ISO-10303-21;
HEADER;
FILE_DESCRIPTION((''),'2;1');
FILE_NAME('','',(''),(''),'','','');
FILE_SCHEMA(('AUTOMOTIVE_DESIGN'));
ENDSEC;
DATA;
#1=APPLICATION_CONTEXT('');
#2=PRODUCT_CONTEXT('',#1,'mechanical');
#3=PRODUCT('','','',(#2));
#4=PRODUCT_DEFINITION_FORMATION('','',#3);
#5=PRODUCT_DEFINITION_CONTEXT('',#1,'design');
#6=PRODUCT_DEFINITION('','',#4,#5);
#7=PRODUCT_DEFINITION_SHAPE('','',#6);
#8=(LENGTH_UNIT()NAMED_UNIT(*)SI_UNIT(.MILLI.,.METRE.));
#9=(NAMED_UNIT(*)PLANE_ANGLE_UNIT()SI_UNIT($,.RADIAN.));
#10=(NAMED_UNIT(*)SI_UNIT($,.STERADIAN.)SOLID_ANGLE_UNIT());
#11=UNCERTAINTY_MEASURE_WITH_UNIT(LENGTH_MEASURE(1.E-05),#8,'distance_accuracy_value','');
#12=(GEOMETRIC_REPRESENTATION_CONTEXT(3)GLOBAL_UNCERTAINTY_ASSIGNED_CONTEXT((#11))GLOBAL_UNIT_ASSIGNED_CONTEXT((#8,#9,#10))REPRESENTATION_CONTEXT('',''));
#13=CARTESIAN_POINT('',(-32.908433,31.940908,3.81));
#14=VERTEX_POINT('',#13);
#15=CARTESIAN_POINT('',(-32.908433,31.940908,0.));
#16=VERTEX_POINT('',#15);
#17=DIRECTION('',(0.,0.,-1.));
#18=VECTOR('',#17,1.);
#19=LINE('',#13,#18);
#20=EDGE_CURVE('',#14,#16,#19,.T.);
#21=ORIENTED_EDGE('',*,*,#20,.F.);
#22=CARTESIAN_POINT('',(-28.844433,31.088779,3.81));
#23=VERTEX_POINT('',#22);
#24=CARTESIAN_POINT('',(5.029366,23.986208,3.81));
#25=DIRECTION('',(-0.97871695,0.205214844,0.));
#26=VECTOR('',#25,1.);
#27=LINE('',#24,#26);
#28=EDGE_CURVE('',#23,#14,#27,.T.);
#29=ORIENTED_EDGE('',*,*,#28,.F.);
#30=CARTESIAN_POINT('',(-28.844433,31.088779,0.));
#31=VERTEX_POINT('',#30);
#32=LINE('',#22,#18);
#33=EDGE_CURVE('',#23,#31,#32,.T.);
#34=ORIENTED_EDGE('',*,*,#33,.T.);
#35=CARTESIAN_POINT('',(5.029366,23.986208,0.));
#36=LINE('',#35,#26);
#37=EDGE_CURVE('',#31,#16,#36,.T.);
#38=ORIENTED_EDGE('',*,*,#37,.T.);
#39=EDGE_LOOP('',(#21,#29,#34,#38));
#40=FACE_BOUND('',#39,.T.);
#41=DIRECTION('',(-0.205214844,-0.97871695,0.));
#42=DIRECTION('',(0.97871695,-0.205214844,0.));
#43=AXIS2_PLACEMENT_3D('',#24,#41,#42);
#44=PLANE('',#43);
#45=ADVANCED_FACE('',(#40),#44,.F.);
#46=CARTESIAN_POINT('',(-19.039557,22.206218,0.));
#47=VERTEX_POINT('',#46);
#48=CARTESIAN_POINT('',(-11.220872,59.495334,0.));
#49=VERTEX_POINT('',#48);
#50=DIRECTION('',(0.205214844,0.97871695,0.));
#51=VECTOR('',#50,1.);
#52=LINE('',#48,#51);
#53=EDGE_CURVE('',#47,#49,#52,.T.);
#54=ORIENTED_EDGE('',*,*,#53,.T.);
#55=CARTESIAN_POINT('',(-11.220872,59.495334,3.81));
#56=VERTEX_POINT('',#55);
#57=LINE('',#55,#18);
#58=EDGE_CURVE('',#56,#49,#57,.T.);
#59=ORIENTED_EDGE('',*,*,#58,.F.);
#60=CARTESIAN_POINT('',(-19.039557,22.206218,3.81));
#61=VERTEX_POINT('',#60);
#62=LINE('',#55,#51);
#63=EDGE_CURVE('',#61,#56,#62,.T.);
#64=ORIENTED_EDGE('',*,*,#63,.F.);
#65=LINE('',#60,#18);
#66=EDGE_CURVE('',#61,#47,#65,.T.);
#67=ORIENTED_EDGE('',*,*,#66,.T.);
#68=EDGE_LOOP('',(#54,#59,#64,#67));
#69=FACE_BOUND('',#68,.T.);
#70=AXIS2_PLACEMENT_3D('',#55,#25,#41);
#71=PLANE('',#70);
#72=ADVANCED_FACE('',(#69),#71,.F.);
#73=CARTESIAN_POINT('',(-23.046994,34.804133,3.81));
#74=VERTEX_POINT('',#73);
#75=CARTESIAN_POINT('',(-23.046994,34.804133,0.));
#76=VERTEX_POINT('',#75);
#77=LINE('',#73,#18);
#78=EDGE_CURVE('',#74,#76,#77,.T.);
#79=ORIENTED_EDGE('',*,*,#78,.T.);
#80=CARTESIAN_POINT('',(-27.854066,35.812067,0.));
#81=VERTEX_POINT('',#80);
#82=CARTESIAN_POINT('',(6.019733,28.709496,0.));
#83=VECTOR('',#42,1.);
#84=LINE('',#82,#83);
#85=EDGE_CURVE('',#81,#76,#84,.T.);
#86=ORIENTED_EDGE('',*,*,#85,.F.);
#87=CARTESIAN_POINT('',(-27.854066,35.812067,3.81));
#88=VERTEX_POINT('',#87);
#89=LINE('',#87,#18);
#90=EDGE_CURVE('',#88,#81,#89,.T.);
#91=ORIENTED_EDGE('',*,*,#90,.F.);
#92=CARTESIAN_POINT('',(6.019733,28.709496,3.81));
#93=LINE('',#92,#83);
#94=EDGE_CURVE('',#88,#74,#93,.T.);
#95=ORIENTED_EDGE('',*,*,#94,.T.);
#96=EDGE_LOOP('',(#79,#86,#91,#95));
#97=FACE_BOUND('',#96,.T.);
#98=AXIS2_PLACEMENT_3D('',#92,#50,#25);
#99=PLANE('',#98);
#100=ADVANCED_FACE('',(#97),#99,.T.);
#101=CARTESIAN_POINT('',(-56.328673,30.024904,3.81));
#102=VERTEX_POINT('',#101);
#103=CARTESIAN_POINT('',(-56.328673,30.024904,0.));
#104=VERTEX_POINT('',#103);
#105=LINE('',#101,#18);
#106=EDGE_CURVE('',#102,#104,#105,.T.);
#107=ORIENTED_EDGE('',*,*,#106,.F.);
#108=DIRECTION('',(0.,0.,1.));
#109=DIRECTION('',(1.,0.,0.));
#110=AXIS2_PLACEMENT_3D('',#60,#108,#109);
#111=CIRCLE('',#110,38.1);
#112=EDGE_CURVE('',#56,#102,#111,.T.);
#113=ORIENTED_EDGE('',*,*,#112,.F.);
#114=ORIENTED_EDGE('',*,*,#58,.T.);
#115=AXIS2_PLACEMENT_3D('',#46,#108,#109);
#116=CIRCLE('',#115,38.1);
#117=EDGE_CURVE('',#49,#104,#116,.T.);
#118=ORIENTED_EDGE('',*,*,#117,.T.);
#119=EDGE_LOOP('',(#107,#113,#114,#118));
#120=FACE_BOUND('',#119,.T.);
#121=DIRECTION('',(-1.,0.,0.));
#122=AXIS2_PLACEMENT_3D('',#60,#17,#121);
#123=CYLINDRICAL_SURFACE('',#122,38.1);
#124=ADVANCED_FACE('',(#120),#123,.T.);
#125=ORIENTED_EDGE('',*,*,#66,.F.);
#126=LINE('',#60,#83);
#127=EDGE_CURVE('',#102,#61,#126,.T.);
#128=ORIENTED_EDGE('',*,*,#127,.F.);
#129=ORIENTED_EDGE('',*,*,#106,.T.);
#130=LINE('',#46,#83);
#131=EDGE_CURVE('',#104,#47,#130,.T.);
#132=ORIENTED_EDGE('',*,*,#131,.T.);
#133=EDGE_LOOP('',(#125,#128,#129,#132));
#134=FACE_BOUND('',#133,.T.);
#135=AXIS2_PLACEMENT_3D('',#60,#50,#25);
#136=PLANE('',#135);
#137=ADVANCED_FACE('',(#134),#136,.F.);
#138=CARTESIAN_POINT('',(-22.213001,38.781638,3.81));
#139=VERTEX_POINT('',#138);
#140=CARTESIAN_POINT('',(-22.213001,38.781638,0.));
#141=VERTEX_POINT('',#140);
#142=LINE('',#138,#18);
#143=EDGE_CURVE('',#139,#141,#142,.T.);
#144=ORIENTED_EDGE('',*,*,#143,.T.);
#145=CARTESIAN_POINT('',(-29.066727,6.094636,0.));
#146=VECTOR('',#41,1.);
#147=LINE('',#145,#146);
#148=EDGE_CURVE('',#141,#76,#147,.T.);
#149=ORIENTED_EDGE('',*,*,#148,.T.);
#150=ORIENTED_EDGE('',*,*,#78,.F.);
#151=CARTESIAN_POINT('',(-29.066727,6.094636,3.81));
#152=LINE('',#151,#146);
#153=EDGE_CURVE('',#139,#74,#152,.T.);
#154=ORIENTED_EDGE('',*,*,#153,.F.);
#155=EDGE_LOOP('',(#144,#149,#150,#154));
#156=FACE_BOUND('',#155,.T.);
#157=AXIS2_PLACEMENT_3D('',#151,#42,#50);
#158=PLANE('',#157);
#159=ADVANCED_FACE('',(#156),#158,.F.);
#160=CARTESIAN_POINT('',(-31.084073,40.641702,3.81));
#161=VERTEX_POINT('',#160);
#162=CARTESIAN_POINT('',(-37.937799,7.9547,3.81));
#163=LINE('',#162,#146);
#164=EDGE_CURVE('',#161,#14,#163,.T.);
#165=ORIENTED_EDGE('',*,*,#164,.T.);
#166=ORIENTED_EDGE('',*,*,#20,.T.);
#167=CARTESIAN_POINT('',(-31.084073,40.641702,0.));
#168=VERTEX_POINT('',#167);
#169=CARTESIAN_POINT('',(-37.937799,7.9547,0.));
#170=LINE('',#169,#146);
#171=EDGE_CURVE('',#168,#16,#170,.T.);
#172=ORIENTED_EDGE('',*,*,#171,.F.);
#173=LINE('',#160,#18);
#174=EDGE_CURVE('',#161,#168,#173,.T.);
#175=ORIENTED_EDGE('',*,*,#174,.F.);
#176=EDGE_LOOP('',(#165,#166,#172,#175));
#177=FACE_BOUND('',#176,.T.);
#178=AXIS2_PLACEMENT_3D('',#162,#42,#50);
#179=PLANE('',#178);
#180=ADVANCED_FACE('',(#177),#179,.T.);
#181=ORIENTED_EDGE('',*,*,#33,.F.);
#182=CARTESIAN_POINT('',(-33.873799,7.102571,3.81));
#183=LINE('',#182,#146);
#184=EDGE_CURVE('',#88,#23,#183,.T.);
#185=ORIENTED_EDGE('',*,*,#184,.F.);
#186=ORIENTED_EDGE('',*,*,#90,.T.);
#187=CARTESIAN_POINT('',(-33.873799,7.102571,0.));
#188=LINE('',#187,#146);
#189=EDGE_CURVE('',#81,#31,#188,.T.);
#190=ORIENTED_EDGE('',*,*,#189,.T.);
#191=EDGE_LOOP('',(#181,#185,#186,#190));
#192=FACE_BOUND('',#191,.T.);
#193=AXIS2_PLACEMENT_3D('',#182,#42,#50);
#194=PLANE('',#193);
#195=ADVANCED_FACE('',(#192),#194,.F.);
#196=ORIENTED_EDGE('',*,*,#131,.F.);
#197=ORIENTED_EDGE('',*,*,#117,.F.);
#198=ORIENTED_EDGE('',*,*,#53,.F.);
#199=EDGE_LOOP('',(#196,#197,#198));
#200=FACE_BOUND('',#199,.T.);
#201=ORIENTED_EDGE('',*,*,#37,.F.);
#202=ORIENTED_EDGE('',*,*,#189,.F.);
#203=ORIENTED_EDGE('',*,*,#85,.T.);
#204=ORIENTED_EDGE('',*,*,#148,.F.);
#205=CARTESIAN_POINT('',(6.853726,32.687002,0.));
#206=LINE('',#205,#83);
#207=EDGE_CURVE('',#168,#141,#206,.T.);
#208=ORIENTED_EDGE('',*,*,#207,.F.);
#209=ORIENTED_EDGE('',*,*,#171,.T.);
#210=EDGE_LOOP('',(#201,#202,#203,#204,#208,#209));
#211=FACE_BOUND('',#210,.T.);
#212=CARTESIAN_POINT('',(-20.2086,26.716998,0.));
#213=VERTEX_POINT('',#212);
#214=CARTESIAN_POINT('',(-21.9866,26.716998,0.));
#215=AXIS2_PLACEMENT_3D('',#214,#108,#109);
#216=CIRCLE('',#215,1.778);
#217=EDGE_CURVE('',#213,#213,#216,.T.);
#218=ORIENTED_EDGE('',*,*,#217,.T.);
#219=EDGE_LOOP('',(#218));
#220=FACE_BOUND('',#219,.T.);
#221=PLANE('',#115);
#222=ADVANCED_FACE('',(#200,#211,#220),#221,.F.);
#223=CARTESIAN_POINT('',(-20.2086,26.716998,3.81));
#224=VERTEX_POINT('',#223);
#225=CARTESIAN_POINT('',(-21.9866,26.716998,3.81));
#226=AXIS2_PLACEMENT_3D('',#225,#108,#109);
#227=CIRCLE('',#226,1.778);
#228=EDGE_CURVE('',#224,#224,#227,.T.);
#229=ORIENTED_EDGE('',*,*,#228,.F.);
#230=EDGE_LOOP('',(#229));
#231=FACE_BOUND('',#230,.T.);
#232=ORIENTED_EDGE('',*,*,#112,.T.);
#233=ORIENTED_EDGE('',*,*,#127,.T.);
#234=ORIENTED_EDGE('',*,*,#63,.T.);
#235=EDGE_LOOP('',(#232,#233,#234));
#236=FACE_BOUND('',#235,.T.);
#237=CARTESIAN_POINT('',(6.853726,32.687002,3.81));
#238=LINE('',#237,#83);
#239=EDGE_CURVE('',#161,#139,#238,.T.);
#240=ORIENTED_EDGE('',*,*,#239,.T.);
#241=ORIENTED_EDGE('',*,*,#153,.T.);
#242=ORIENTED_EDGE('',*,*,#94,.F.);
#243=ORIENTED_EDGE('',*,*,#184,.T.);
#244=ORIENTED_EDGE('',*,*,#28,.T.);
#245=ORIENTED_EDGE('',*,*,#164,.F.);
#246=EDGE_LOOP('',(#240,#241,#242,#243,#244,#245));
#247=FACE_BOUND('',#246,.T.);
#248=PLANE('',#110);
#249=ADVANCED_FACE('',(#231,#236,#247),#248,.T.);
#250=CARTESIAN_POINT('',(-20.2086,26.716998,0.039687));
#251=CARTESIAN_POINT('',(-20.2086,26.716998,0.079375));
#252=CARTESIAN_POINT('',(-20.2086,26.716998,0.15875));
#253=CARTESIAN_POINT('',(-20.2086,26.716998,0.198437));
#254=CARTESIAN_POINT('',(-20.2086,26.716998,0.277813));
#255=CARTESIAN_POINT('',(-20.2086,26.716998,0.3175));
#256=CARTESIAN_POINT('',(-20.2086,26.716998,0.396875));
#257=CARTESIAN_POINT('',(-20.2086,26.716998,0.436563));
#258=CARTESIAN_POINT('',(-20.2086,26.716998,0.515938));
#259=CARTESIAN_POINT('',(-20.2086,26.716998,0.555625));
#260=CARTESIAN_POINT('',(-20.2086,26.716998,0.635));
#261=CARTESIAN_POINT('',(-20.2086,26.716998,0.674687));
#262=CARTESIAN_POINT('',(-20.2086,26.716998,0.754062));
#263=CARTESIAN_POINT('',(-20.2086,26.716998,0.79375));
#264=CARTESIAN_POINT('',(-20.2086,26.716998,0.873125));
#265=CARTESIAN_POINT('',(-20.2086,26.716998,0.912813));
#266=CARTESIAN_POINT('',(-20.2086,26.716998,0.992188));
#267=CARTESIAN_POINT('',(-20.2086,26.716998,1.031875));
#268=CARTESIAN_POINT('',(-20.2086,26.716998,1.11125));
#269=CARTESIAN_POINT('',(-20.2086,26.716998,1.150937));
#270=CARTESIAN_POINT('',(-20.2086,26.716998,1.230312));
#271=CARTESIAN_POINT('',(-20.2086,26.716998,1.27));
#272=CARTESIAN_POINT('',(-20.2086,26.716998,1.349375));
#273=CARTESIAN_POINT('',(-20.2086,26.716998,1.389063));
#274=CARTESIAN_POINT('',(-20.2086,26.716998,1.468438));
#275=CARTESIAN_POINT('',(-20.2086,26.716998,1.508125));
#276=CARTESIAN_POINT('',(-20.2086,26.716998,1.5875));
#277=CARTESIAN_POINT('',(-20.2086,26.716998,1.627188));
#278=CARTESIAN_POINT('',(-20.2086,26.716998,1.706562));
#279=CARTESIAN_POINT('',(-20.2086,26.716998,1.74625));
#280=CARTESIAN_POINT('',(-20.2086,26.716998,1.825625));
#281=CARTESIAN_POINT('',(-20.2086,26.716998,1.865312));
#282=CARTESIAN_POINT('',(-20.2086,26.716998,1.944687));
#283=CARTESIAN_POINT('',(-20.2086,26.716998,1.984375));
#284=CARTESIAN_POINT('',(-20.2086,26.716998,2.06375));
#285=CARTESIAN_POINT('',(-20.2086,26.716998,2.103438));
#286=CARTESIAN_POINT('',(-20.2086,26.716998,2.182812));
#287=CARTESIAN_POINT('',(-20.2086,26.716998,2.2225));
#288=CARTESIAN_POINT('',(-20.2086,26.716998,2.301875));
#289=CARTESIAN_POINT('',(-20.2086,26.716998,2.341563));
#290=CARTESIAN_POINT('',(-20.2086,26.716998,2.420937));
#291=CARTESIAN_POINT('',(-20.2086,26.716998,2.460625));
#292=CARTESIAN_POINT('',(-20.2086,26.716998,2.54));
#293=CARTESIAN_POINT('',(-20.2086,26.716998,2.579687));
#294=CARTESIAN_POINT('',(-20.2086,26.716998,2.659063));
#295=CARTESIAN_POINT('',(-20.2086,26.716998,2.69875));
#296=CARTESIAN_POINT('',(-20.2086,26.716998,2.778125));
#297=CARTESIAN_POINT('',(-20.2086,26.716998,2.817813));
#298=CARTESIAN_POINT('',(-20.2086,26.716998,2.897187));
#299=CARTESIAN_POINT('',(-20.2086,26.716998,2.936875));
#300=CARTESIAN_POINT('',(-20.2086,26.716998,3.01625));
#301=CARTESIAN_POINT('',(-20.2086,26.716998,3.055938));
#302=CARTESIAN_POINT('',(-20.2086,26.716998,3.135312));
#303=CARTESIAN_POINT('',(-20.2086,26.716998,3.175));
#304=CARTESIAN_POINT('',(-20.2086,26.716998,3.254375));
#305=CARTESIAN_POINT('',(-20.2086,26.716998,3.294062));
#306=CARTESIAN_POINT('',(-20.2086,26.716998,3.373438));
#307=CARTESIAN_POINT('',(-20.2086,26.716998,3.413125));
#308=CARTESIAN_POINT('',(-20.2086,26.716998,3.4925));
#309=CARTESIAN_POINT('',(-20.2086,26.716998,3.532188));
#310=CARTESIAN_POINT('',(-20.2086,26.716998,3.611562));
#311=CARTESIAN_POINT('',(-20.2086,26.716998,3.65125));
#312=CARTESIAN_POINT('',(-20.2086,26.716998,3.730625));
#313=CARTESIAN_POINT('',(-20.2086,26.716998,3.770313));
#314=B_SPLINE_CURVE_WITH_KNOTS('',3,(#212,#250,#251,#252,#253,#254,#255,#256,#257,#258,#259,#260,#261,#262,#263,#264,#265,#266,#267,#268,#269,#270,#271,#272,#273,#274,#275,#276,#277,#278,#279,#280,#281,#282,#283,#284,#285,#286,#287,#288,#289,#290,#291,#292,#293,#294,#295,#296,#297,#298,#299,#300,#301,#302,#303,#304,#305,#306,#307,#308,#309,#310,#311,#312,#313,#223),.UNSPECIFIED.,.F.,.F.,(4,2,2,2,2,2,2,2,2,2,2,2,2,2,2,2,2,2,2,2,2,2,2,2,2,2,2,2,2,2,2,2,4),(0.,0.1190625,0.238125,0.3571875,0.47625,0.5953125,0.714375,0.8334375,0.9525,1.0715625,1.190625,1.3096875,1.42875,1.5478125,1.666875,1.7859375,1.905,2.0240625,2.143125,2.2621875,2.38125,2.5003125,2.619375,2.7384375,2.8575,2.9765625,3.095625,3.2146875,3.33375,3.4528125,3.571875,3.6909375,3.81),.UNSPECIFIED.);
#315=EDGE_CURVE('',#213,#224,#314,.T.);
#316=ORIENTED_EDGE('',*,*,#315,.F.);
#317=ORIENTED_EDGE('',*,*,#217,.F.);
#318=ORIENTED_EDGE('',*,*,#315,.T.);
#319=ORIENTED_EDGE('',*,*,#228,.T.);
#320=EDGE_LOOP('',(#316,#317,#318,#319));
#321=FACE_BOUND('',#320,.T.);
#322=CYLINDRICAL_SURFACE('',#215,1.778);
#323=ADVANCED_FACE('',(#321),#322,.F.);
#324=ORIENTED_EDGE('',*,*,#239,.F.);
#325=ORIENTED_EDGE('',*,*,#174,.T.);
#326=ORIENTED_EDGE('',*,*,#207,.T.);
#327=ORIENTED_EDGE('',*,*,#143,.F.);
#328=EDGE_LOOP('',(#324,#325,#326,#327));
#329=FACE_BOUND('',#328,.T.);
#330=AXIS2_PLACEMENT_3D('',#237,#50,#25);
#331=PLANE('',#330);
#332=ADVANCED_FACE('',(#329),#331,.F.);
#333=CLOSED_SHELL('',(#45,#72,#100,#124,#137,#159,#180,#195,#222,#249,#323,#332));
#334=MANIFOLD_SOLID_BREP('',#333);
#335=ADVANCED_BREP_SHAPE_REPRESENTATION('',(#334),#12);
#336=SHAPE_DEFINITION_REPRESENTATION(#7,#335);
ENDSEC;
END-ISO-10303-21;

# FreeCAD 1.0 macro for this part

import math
import FreeCAD as App
import Part
import Sketcher
Q = App.Units.Quantity


def add_polygon(sketch, points):
    """Adds a closed chain of lines whose ends are joined by coincident constraints."""
    first, n = sketch.GeometryCount, len(points)
    for a, b in zip(points, points[1:] + points[:1]):
        sketch.addGeometry(Part.LineSegment(App.Vector(*a, 0), App.Vector(*b, 0)), False)
    for i in range(n):
        sketch.addConstraint(Sketcher.Constraint("Coincident", first + i, 2, first + (i + 1) % n, 1))

doc = App.newDocument("Part")
body = doc.addObject("PartDesign::Body", "Body")

# Sketch on XY plane
sketch1 = body.newObject("Sketcher::SketchObject", "Sketch")
sketch1.AttachmentSupport = (doc.getObject("XY_Plane"), [""])
sketch1.MapMode = "FlatFace"
sketch1.addGeometry([
    Part.LineSegment(App.Vector(-19.039557, 22.206218, 0), App.Vector(-11.220872, 59.495334, 0)),
    Part.ArcOfCircle(Part.Circle(App.Vector(-19.039557, 22.206218, 0), App.Vector(0, 0, 1), 38.1), math.radians(78.157924), math.radians(168.157924)),
    Part.LineSegment(App.Vector(-56.328673, 30.024904, 0), App.Vector(-19.039557, 22.206218, 0)),
], False)
sketch1.addConstraint([
    Sketcher.Constraint("Coincident", 0, 2, 1, 1),
    Sketcher.Constraint("Coincident", 1, 2, 2, 1),
    Sketcher.Constraint("Coincident", 2, 2, 0, 1),
    Sketcher.Constraint("Coincident", 2, 2, 1, 3),
    Sketcher.Constraint("Perpendicular", 0, 2),
    Sketcher.Constraint("Radius", 1, Q("1.5 in")),
    Sketcher.Constraint("DistanceX", 1, 2, 0, 2, 45.107801),
    Sketcher.Constraint("DistanceY", -1, 1, 1, 3, 22.206218),
    Sketcher.Constraint("DistanceX", 0, 2, -1, 1, 11.220872),
])
pad1 = body.newObject("PartDesign::Pad", "Pad")
pad1.Profile = sketch1
pad1.Length = Q("0.15 in")

# Sketch on XY plane
sketch2 = body.newObject("Sketcher::SketchObject", "Sketch001")
sketch2.AttachmentSupport = (doc.getObject("XY_Plane"), [""])
sketch2.MapMode = "FlatFace"
sketch2.AttachmentOffset = App.Placement(App.Vector(0, 0, 0.15 * 25.4), App.Rotation())
sketch2.addGeometry(Part.Circle(App.Vector(-21.9866, 26.716998, 0), App.Vector(0, 0, 1), 1.778), False)
sketch2.addConstraint([
    Sketcher.Constraint("Diameter", 0, Q("0.14 in")),
    Sketcher.Constraint("DistanceX", 0, 3, -1, 1, 21.9866),
    Sketcher.Constraint("DistanceY", -1, 1, 0, 3, 26.716998),
])
pocket1 = body.newObject("PartDesign::Pocket", "Pocket")
pocket1.Profile = sketch2
pocket1.Type = "ThroughAll"

# Sketch on XY plane
sketch3 = body.newObject("Sketcher::SketchObject", "Sketch002")
sketch3.AttachmentSupport = (doc.getObject("XY_Plane"), [""])
sketch3.MapMode = "FlatFace"
add_polygon(sketch3, [(-31.084073, 40.641702), (-22.213001, 38.781638), (-23.046994, 34.804133), (-27.854066, 35.812067), (-28.844433, 31.088779), (-32.908433, 31.940908), (-31.918066, 36.664196)])  # lines 0-6
sketch3.addConstraint([
    Sketcher.Constraint("Perpendicular", 0, 1),
    Sketcher.Constraint("Perpendicular", 1, 2),
    Sketcher.Constraint("Perpendicular", 2, 3),
    Sketcher.Constraint("Perpendicular", 3, 4),
    Sketcher.Constraint("Perpendicular", 4, 5),
    Sketcher.Constraint("Parallel", 5, 6),
    Sketcher.Constraint("Equal", 3, 5),
    Sketcher.Constraint("Distance", 1, Q("0.16 in")),
    Sketcher.Constraint("Distance", 3, Q("0.19 in")),
    Sketcher.Constraint("DistanceX", 4, 2, 3, 2, Q("0.16 in")),
    Sketcher.Constraint("DistanceX", 0, 2, -1, 1, 22.213001),
    Sketcher.Constraint("DistanceY", -1, 1, 6, 2, 40.641702),
    Sketcher.Constraint("Distance", 0, 9.063982),
    Sketcher.Constraint("DistanceY", -1, 1, 0, 2, 38.781638),
])
pocket2 = body.newObject("PartDesign::Pocket", "Pocket001")
pocket2.Profile = sketch3
pocket2.Type = "ThroughAll"
pocket2.Reversed = True

doc.recompute()
